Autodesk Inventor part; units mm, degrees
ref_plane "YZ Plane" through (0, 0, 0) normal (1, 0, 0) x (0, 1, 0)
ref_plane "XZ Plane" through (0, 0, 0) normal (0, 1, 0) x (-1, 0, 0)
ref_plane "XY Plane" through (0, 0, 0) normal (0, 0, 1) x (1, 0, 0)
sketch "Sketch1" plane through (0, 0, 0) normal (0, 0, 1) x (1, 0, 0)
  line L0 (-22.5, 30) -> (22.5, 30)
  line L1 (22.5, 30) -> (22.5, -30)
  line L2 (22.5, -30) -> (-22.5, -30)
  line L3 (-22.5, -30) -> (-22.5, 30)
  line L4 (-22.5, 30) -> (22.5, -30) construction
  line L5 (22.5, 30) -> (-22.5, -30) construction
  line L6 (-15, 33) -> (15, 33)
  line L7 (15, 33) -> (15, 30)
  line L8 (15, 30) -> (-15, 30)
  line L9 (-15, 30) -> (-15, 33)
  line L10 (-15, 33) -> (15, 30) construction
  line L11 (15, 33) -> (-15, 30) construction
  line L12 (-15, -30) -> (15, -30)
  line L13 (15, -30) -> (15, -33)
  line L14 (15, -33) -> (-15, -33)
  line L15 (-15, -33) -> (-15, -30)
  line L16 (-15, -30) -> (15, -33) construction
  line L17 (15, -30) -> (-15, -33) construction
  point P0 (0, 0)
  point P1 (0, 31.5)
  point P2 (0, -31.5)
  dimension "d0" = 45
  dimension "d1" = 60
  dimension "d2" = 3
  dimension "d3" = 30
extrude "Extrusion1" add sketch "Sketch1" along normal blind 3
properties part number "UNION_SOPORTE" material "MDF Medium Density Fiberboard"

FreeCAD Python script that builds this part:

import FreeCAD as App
import Part
import Sketcher

V = App.Vector


def add_polygon(sketch, points):
    """Adds a closed chain of lines whose ends are joined by coincident constraints."""
    first, n = sketch.GeometryCount, len(points)
    for a, b in zip(points, points[1:] + points[:1]):
        sketch.addGeometry(Part.LineSegment(App.Vector(*a, 0), App.Vector(*b, 0)), False)
    for i in range(n):
        sketch.addConstraint(Sketcher.Constraint("Coincident", first + i, 2, first + (i + 1) % n, 1))

doc = App.newDocument("Part")
body = doc.addObject("PartDesign::Body", "Body")

sketch1 = body.newObject("Sketcher::SketchObject", "Sketch")
sketch1.AttachmentSupport = (doc.getObject("XY_Plane"), [""])
sketch1.MapMode = "FlatFace"
add_polygon(sketch1, [(-15, 30), (-22.5, 30), (-22.5, -30), (-15, -30), (-15, -33), (15, -33), (15, -30), (22.5, -30), (22.5, 30), (15, 30), (15, 33), (-15, 33)])
sketch1.addConstraint([
    Sketcher.Constraint("Horizontal", 0),
    Sketcher.Constraint("Vertical", 1),
    Sketcher.Constraint("Horizontal", 2),
    Sketcher.Constraint("Vertical", 3),
    Sketcher.Constraint("Horizontal", 4),
    Sketcher.Constraint("Vertical", 5),
    Sketcher.Constraint("Horizontal", 6),
    Sketcher.Constraint("Vertical", 7),
    Sketcher.Constraint("Horizontal", 8),
    Sketcher.Constraint("Vertical", 9),
    Sketcher.Constraint("Horizontal", 10),
    Sketcher.Constraint("Vertical", 11),
    Sketcher.Constraint("Symmetric", 0, 2, 6, 2, -1, 1),
    Sketcher.Constraint("Symmetric", 2, 2, 8, 2, -1, 1),
    Sketcher.Constraint("Symmetric", 4, 2, 10, 2, -1, 1),
    Sketcher.Constraint("Symmetric", 2, 2, 5, 2, -2),
    Sketcher.Constraint("DistanceX", 4, 1, 4, 2, 30.0),
    Sketcher.Constraint("DistanceY", 1, 2, 1, 1, 60.0),
    Sketcher.Constraint("DistanceY", 3, 2, 3, 1, 3.0),
    Sketcher.Constraint("DistanceX", 1, 2, 6, 2, 45.0),
])
pad1 = body.newObject("PartDesign::Pad", "Pad")
pad1.Profile = sketch1
pad1.Length = 3

doc.recompute()
